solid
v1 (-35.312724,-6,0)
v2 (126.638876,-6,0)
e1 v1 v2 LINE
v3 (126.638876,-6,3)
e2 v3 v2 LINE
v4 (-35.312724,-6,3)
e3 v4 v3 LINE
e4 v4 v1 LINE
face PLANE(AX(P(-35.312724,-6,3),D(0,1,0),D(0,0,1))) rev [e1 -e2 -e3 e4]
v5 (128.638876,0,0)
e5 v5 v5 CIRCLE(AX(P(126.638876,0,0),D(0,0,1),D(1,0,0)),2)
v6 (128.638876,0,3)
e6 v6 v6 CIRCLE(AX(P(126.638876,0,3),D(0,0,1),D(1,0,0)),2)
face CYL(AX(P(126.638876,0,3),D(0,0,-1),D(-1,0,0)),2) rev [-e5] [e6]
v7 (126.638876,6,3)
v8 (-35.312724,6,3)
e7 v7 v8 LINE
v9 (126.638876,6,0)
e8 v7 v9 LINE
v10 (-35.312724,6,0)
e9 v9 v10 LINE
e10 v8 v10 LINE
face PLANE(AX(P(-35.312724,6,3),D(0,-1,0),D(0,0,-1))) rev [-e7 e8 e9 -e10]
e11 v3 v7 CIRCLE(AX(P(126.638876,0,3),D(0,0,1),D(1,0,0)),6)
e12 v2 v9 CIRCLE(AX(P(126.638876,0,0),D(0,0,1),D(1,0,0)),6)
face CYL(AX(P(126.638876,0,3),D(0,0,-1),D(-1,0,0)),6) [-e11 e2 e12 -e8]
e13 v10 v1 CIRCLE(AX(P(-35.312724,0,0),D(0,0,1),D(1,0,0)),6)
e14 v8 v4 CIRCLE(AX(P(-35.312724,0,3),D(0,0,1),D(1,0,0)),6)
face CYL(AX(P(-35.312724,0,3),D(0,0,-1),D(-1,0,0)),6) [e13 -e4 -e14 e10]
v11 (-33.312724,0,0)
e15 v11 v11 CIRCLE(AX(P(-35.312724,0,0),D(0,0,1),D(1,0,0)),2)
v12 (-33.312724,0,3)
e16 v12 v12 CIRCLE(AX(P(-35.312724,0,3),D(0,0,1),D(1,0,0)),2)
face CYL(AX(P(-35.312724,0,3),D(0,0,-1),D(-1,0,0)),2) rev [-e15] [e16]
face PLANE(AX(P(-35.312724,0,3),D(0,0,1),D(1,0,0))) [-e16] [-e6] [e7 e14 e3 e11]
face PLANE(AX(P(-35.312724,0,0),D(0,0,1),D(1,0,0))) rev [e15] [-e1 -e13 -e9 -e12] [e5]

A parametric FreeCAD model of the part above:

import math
import FreeCAD as App
import Part
import Sketcher

V = App.Vector
Q = App.Units.Quantity

doc = App.newDocument("Part")
body = doc.addObject("PartDesign::Body", "Body")

sketch1 = body.newObject("Sketcher::SketchObject", "Sketch")
sketch1.AttachmentSupport = (doc.getObject("XY_Plane"), [""])
sketch1.MapMode = "FlatFace"
sketch1.addGeometry([
    Part.LineSegment(V(126.6, 6, 0), V(-35.3, 6, 0)),
    Part.ArcOfCircle(Part.Circle(V(-35.3, 0, 0), V(0, 0, 1), 6), math.radians(90), math.radians(270)),
    Part.LineSegment(V(-35.3, -6, 0), V(126.6, -6, 0)),
    Part.ArcOfCircle(Part.Circle(V(126.6, 0, 0), V(0, 0, 1), 6), math.radians(-90), math.radians(90)),
    Part.Circle(V(126.6, 0, 0), V(0, 0, 1), 2),
    Part.Circle(V(-35.3, 0, 0), V(0, 0, 1), 2),
], False)
sketch1.addConstraint([
    Sketcher.Constraint("Tangent", 0, 2, 1, 1),
    Sketcher.Constraint("Tangent", 1, 2, 2, 1),
    Sketcher.Constraint("Tangent", 2, 2, 3, 1),
    Sketcher.Constraint("Tangent", 3, 2, 0, 1),
    Sketcher.Constraint("Horizontal", 0),
    Sketcher.Constraint("Horizontal", 2),
    Sketcher.Constraint("Coincident", 4, 3, 3, 3),
    Sketcher.Constraint("Coincident", 5, 3, 1, 3),
    Sketcher.Constraint("Equal", 4, 5),
    Sketcher.Constraint("PointOnObject", 1, 3, -1),
    Sketcher.Constraint("Diameter", 4, Q("4 mm")),
    Sketcher.Constraint("Radius", 1, Q("6 mm")),
    Sketcher.Constraint("DistanceX", 0, 2, 0, 1, Q("161.9516 mm")),
    Sketcher.Constraint("DistanceX", 1, 3, -1, 1, Q("35.312724 mm")),
])
pad1 = body.newObject("PartDesign::Pad", "Pad")
pad1.Profile = sketch1
pad1.Length = 3

doc.recompute()
